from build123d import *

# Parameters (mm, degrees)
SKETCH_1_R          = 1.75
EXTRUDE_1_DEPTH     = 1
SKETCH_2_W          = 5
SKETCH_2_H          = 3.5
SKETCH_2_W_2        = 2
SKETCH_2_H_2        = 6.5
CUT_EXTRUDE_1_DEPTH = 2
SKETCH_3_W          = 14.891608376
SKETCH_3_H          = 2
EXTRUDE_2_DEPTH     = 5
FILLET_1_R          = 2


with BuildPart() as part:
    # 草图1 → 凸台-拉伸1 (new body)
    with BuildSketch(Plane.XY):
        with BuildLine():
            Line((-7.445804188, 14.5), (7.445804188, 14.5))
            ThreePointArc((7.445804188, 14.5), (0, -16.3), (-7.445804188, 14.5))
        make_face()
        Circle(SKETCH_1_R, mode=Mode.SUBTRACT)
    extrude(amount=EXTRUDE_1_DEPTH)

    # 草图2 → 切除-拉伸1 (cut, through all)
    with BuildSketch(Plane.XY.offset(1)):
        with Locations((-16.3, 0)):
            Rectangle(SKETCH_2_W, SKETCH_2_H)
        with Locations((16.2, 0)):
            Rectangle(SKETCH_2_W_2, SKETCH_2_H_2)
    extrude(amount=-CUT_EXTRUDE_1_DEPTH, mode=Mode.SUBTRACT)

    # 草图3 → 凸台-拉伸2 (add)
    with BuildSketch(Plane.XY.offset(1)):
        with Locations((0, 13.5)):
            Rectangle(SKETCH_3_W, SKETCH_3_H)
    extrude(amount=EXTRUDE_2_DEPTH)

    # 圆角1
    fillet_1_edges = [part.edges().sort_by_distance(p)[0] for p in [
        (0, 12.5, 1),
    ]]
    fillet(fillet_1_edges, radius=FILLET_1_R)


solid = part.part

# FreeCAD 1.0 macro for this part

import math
import FreeCAD as App
import Part
import Sketcher
from FreeCAD import Vector


def edges_at(feature, points):
    """Names of the edges that pass closest to the given points."""
    edges = feature.Shape.Edges
    near = lambda p: min(range(len(edges)), key=lambda i: edges[i].distToShape(Part.Vertex(*p))[0])
    return sorted({f"Edge{near(p) + 1}" for p in points})


def add_polygon(sketch, points):
    """Adds a closed chain of lines whose ends are joined by coincident constraints."""
    first, n = sketch.GeometryCount, len(points)
    for a, b in zip(points, points[1:] + points[:1]):
        sketch.addGeometry(Part.LineSegment(App.Vector(*a, 0), App.Vector(*b, 0)), False)
    for i in range(n):
        sketch.addConstraint(Sketcher.Constraint("Coincident", first + i, 2, first + (i + 1) % n, 1))

doc = App.newDocument("Part")
body = doc.addObject("PartDesign::Body", "Body")

# Sketch on XY plane
sketch1 = body.newObject("Sketcher::SketchObject", "Sketch")
sketch1.AttachmentSupport = (doc.getObject("XY_Plane"), [""])
sketch1.MapMode = "FlatFace"
sketch1.addGeometry([
    Part.LineSegment(Vector(7.4, 14.5, 0), Vector(-7.4, 14.5, 0)),
    Part.ArcOfCircle(Part.Circle(Vector(0, 0, 0), Vector(0, 0, 1), 16.3), math.radians(117), math.radians(423)),
    Part.Circle(Vector(0, 0, 0), Vector(0, 0, 1), 1.8),
], False)
sketch1.addConstraint([
    Sketcher.Constraint("Coincident", 0, 1, 1, 2),
    Sketcher.Constraint("Coincident", 1, 1, 0, 2),
    Sketcher.Constraint("Horizontal", 0),
    Sketcher.Constraint("Coincident", 1, 3, -1, 1),
    Sketcher.Constraint("Coincident", 2, 3, -1, 1),
    Sketcher.Constraint("Diameter", 2, 3.5),
    Sketcher.Constraint("Radius", 1, 16.3),
    Sketcher.Constraint("DistanceY", -1, 1, 0, 1, 14.5),
])
pad1 = body.newObject("PartDesign::Pad", "Pad")
pad1.Profile = sketch1
pad1.Length = 1

# Sketch on XY plane
sketch2 = body.newObject("Sketcher::SketchObject", "Sketch001")
sketch2.AttachmentSupport = (doc.getObject("XY_Plane"), [""])
sketch2.MapMode = "FlatFace"
sketch2.AttachmentOffset = App.Placement(Vector(0, 0, 1), App.Rotation())
add_polygon(sketch2, [(-18.8, 1.8), (-18.8, -1.8), (-13.8, -1.8), (-13.8, 1.8)])  # lines 0-3
add_polygon(sketch2, [(15.2, 3.2), (15.2, -3.2), (17.2, -3.2), (17.2, 3.2)])  # lines 4-7
sketch2.addConstraint([
    Sketcher.Constraint("Vertical", 0),
    Sketcher.Constraint("Horizontal", 1),
    Sketcher.Constraint("Vertical", 2),
    Sketcher.Constraint("Horizontal", 3),
    Sketcher.Constraint("Vertical", 4),
    Sketcher.Constraint("Horizontal", 5),
    Sketcher.Constraint("Vertical", 6),
    Sketcher.Constraint("Horizontal", 7),
    Sketcher.Constraint("DistanceX", 1, 1, 1, 2, 5.0),
    Sketcher.Constraint("DistanceX", 5, 1, 5, 2, 2.0),
    Sketcher.Constraint("DistanceY", 0, 2, 0, 1, 3.5),
    Sketcher.Constraint("DistanceY", 4, 2, 4, 1, 6.5),
    Sketcher.Constraint("DistanceX", 1, 2, 4, 2, 29.0),
    Sketcher.Constraint("DistanceY", 4, 2, 2, 2, 5.0),
    Sketcher.Constraint("DistanceX", 0, 2, -1, 1, 18.8),
    Sketcher.Constraint("DistanceY", 0, 2, -1, 1, 1.75),
])
pocket1 = body.newObject("PartDesign::Pocket", "Pocket")
pocket1.Profile = sketch2
pocket1.Type = "ThroughAll"

# Sketch on XY plane
sketch3 = body.newObject("Sketcher::SketchObject", "Sketch002")
sketch3.AttachmentSupport = (doc.getObject("XY_Plane"), [""])
sketch3.MapMode = "FlatFace"
sketch3.AttachmentOffset = App.Placement(Vector(0, 0, 1), App.Rotation())
add_polygon(sketch3, [(-7.4, 14.5), (-7.4, 12.5), (7.4, 12.5), (7.4, 14.5)])  # lines 0-3
sketch3.addConstraint([
    Sketcher.Constraint("Vertical", 0),
    Sketcher.Constraint("Horizontal", 1),
    Sketcher.Constraint("Vertical", 2),
    Sketcher.Constraint("Horizontal", 3),
    Sketcher.Constraint("DistanceY", 0, 2, 0, 1, 2.0),
    Sketcher.Constraint("DistanceY", -1, 1, 0, 2, 12.5),
    Sketcher.Constraint("DistanceX", 1, 1, 1, 2, 14.891608),
    Sketcher.Constraint("DistanceX", 0, 2, -1, 1, 7.445804),
])
pad2 = body.newObject("PartDesign::Pad", "Pad001")
pad2.Profile = sketch3
pad2.Length = 5
doc.recompute()

fillet = body.newObject("PartDesign::Fillet", "Fillet")
fillet.Base = (pad2, edges_at(pad2, [(0, 12.5, 1)]))
fillet.Radius = 2

doc.recompute()
